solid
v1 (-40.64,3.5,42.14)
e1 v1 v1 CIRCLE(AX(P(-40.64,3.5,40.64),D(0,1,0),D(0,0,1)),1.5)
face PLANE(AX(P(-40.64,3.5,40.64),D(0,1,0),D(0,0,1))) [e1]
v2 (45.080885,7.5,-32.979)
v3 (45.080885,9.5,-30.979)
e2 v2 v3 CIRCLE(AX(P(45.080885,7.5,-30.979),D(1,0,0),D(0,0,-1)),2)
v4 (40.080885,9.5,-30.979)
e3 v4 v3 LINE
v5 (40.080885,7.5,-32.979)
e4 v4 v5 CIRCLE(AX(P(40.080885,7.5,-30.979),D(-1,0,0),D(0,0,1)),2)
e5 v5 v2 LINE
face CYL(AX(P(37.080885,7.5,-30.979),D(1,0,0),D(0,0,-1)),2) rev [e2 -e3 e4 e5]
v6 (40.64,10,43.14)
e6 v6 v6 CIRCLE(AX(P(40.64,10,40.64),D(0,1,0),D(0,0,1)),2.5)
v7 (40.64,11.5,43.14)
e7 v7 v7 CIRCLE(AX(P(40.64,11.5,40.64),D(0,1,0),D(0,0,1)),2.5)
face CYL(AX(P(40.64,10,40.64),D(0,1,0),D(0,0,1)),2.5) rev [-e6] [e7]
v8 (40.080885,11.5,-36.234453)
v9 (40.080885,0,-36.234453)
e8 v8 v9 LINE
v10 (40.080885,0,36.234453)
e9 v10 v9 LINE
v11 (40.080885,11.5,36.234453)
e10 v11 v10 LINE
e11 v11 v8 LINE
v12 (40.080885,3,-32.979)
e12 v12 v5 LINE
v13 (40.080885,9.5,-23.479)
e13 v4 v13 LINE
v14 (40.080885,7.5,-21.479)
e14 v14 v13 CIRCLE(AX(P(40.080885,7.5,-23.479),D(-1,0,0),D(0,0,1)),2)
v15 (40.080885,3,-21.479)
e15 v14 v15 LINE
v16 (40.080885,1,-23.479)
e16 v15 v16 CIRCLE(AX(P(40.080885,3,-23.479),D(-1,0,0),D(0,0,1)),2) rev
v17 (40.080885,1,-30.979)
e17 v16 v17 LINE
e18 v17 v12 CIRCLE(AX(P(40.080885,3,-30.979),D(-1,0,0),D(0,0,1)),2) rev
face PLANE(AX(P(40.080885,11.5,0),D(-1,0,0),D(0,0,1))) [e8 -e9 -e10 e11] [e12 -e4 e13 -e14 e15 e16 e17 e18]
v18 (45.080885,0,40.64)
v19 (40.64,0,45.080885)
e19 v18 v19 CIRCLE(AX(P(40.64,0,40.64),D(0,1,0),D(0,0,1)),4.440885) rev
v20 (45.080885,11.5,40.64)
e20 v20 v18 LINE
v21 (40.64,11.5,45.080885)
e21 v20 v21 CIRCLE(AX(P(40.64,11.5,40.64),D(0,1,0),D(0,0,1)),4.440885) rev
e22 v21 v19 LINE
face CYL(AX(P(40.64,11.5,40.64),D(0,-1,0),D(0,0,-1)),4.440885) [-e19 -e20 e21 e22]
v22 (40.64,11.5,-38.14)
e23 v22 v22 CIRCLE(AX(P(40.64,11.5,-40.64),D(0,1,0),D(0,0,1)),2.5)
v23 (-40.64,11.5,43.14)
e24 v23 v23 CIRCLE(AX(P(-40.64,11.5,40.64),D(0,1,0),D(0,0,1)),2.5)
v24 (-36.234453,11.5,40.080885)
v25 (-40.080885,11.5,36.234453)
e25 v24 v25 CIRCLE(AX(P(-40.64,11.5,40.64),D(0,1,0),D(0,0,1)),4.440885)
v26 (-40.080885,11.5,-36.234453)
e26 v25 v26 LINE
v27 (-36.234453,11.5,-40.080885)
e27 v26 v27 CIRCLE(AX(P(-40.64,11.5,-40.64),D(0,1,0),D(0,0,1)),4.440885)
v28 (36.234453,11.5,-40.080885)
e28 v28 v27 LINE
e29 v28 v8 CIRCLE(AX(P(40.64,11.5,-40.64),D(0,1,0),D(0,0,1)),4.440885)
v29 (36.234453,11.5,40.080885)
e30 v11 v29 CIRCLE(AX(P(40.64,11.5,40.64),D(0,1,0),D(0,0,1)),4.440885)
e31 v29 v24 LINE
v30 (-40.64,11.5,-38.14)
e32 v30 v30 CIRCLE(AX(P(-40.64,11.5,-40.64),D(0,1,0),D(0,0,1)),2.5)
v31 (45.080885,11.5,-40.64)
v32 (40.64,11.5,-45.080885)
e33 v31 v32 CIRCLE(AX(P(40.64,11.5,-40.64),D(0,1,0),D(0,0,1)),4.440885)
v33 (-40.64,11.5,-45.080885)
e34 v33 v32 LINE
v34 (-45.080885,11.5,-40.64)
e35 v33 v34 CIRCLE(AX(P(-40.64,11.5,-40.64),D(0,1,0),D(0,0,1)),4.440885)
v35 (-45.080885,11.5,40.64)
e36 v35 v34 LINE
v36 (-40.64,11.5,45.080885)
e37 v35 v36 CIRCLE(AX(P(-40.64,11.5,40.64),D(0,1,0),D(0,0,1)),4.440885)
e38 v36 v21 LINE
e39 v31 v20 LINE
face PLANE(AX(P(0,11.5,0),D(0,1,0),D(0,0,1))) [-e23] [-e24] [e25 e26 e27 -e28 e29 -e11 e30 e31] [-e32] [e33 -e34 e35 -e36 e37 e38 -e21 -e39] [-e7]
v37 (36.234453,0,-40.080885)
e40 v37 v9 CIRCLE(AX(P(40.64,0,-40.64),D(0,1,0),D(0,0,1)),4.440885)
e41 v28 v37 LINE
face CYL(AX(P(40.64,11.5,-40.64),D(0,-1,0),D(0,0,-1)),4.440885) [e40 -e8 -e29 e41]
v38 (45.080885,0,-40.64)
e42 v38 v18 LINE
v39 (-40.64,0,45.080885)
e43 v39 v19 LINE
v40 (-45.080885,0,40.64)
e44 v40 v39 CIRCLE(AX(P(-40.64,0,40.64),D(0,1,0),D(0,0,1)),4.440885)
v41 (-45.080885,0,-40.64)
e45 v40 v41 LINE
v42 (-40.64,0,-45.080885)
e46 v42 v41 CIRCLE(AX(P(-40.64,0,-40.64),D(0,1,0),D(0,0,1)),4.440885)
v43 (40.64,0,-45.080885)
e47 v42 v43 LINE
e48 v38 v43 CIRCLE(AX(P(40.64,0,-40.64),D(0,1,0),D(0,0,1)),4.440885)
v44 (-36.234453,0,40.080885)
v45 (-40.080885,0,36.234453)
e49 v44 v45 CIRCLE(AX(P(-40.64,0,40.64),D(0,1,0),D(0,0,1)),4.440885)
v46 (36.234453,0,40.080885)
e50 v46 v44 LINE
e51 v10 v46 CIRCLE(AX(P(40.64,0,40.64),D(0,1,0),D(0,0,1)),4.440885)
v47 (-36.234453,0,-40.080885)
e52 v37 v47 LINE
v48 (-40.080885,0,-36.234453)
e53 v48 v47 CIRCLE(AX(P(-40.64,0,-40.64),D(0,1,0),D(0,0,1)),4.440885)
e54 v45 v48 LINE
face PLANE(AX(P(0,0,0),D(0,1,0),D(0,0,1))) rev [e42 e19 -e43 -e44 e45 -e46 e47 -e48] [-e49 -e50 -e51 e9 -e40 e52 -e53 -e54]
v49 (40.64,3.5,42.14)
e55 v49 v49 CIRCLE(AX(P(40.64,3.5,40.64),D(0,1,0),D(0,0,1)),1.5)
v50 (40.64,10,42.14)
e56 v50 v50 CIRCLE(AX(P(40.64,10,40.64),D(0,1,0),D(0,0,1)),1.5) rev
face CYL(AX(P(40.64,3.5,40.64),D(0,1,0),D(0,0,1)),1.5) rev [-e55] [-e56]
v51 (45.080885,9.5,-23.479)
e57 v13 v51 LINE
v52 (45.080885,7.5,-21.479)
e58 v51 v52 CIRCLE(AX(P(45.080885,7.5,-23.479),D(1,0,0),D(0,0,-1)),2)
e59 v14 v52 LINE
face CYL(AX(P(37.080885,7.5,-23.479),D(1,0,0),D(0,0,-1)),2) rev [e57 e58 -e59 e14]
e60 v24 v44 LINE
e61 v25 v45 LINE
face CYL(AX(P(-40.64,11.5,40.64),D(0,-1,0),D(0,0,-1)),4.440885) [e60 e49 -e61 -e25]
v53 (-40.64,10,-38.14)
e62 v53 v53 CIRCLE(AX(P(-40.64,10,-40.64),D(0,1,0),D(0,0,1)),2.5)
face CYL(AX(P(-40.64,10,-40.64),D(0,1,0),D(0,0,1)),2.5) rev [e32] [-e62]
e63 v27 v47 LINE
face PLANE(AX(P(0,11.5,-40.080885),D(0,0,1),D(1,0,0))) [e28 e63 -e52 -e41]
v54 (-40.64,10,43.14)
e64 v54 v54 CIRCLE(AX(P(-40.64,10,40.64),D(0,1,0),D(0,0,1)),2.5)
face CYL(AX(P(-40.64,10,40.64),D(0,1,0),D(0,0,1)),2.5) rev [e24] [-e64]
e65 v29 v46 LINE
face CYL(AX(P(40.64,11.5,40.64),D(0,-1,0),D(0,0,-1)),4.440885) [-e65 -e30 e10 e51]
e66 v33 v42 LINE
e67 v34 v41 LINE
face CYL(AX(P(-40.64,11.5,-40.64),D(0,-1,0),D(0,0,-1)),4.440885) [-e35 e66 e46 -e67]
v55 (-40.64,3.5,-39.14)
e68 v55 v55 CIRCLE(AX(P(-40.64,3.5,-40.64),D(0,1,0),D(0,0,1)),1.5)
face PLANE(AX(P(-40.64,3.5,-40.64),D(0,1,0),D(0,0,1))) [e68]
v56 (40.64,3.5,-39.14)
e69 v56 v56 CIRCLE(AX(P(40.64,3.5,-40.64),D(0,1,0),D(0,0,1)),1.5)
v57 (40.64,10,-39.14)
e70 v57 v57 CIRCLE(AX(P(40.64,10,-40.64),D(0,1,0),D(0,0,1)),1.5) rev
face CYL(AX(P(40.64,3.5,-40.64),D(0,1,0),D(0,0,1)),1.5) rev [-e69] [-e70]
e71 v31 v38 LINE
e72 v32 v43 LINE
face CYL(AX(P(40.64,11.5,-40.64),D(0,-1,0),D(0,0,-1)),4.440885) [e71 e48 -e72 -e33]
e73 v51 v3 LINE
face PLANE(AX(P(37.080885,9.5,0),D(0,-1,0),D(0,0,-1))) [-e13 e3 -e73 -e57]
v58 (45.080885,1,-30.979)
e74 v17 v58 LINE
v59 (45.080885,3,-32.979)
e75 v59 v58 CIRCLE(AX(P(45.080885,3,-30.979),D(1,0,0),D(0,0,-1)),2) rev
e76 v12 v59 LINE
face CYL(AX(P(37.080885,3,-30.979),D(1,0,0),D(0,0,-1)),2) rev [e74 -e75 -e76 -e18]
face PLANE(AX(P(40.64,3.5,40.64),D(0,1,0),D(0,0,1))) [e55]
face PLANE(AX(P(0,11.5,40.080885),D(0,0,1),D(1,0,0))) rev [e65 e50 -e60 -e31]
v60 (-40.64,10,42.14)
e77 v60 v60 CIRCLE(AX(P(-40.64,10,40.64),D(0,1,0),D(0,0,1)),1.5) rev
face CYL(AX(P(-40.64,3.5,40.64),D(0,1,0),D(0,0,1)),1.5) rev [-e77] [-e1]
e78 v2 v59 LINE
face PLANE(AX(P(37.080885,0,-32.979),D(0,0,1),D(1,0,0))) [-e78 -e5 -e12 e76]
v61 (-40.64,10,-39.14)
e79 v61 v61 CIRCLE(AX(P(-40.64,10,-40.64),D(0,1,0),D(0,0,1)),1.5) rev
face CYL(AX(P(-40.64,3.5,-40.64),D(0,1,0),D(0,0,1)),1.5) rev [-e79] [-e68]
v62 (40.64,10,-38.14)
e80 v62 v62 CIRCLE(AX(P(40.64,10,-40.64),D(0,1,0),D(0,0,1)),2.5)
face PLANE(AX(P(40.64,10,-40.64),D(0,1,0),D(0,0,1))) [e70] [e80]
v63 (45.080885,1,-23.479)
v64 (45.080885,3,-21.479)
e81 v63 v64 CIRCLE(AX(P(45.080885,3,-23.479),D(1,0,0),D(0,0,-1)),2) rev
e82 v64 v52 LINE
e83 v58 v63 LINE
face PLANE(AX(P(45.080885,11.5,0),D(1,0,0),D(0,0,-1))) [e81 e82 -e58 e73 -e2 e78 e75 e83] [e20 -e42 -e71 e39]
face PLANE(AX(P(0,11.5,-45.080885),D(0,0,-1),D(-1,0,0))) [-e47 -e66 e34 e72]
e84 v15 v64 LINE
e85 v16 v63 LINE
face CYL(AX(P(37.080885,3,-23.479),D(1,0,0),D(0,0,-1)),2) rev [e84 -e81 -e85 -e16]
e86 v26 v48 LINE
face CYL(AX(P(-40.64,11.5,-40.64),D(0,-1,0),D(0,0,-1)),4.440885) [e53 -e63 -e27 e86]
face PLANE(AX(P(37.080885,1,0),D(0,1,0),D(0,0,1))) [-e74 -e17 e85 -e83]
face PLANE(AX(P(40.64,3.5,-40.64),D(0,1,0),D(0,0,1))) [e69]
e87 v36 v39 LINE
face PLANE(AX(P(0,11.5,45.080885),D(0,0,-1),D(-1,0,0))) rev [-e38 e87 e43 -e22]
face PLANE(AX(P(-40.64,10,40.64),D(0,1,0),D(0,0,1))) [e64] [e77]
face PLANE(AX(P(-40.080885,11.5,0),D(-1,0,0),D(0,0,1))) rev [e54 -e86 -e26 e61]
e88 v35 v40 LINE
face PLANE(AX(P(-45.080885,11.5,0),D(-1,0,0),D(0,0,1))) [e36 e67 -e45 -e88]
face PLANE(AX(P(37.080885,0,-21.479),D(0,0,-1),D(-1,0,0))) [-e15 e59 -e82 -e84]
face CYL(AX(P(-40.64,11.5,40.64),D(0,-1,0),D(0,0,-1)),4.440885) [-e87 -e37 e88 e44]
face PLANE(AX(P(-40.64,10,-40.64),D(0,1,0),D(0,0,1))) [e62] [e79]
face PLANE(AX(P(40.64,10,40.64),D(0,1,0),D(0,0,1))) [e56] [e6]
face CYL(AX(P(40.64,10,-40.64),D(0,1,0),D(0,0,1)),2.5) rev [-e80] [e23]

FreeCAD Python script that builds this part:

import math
import FreeCAD as App
import Part
import Sketcher
Q = App.Units.Quantity

doc = App.newDocument("Part")
body = doc.addObject("PartDesign::Body", "Body")

sketch1 = body.newObject("Sketcher::SketchObject", "Sketch")
sketch1.AttachmentSupport = (doc.getObject("XZ_Plane"), [""])
sketch1.MapMode = "FlatFace"
sketch1.addGeometry([
    Part.ArcOfCircle(Part.Circle(App.Vector(-40.6, -40.6, 0), App.Vector(0, 0, 1), 4.4), math.radians(180), math.radians(270)),
    Part.LineSegment(App.Vector(-45.1, -40.6, 0), App.Vector(-45.1, 40.6, 0)),
    Part.ArcOfCircle(Part.Circle(App.Vector(-40.6, 40.6, 0), App.Vector(0, 0, 1), 4.4), math.radians(90), math.radians(180)),
    Part.LineSegment(App.Vector(-40.6, 45.1, 0), App.Vector(40.6, 45.1, 0)),
    Part.ArcOfCircle(Part.Circle(App.Vector(40.6, 40.6, 0), App.Vector(0, 0, 1), 4.4), math.radians(0), math.radians(90)),
    Part.LineSegment(App.Vector(45.1, 40.6, 0), App.Vector(45.1, -40.6, 0)),
    Part.ArcOfCircle(Part.Circle(App.Vector(40.6, -40.6, 0), App.Vector(0, 0, 1), 4.4), math.radians(-90), math.radians(0)),
    Part.LineSegment(App.Vector(40.6, -45.1, 0), App.Vector(-40.6, -45.1, 0)),
    Part.ArcOfCircle(Part.Circle(App.Vector(40.6, 40.6, 0), App.Vector(0, 0, 1), 4.4), math.radians(-173), math.radians(-97)),
    Part.LineSegment(App.Vector(36.2, 40.1, 0), App.Vector(-36.2, 40.1, 0)),
    Part.ArcOfCircle(Part.Circle(App.Vector(-40.6, 40.6, 0), App.Vector(0, 0, 1), 4.4), math.radians(-83), math.radians(-7)),
    Part.LineSegment(App.Vector(-40.1, 36.2, 0), App.Vector(-40.1, -36.2, 0)),
    Part.ArcOfCircle(Part.Circle(App.Vector(-40.6, -40.6, 0), App.Vector(0, 0, 1), 4.4), math.radians(7), math.radians(83)),
    Part.LineSegment(App.Vector(-36.2, -40.1, 0), App.Vector(36.2, -40.1, 0)),
    Part.ArcOfCircle(Part.Circle(App.Vector(40.6, -40.6, 0), App.Vector(0, 0, 1), 4.4), math.radians(97), math.radians(173)),
    Part.LineSegment(App.Vector(40.1, -36.2, 0), App.Vector(40.1, 36.2, 0)),
], False)
sketch1.addConstraint([
    Sketcher.Constraint("Tangent", 0, 1, 1, 1),
    Sketcher.Constraint("Tangent", 1, 2, 2, 2),
    Sketcher.Constraint("Tangent", 2, 1, 3, 1),
    Sketcher.Constraint("Tangent", 3, 2, 4, 2),
    Sketcher.Constraint("Tangent", 4, 1, 5, 1),
    Sketcher.Constraint("Tangent", 5, 2, 6, 2),
    Sketcher.Constraint("Tangent", 6, 1, 7, 1),
    Sketcher.Constraint("Tangent", 7, 2, 0, 2),
    Sketcher.Constraint("Coincident", 8, 1, 9, 1),
    Sketcher.Constraint("Coincident", 9, 2, 10, 2),
    Sketcher.Constraint("Coincident", 10, 1, 11, 1),
    Sketcher.Constraint("Coincident", 11, 2, 12, 2),
    Sketcher.Constraint("Coincident", 12, 1, 13, 1),
    Sketcher.Constraint("Coincident", 13, 2, 14, 2),
    Sketcher.Constraint("Coincident", 14, 1, 15, 1),
    Sketcher.Constraint("Coincident", 15, 2, 8, 2),
    Sketcher.Constraint("Vertical", 1),
    Sketcher.Constraint("Horizontal", 3),
    Sketcher.Constraint("Vertical", 5),
    Sketcher.Constraint("Horizontal", 7),
    Sketcher.Constraint("Horizontal", 9),
    Sketcher.Constraint("Vertical", 11),
    Sketcher.Constraint("Horizontal", 13),
    Sketcher.Constraint("Vertical", 15),
    Sketcher.Constraint("Coincident", 8, 3, 4, 3),
    Sketcher.Constraint("Coincident", 10, 3, 2, 3),
    Sketcher.Constraint("Coincident", 12, 3, 0, 3),
    Sketcher.Constraint("Coincident", 14, 3, 6, 3),
    Sketcher.Constraint("Equal", 0, 2),
    Sketcher.Constraint("Equal", 2, 4),
    Sketcher.Constraint("Equal", 4, 6),
    Sketcher.Constraint("Equal", 6, 8),
    Sketcher.Constraint("Equal", 8, 10),
    Sketcher.Constraint("Equal", 10, 12),
    Sketcher.Constraint("Equal", 12, 14),
    Sketcher.Constraint("Symmetric", 0, 3, 4, 3, -1, 1),
    Sketcher.Constraint("Horizontal", 11, 2, 14, 1),
    Sketcher.Constraint("Vertical", 9, 2, 12, 1),
    Sketcher.Constraint("Equal", 7, 1),
    Sketcher.Constraint("Equal", 13, 11),
    Sketcher.Constraint("DistanceY", 8, 1, 3, 2, Q("5 mm")),
    Sketcher.Constraint("DistanceX", 3, 1, 3, 2, Q("81.28 mm")),
    Sketcher.Constraint("Radius", 0, Q("4.440885 mm")),
])
pad1 = body.newObject("PartDesign::Pad", "Pad")
pad1.Profile = sketch1
pad1.Length = 11.5
pad1.Reversed = True

sketch2 = body.newObject("Sketcher::SketchObject", "Sketch001")
sketch2.AttachmentSupport = (doc.getObject("XZ_Plane"), [""])
sketch2.MapMode = "FlatFace"
sketch2.AttachmentOffset = App.Placement(App.Vector(0, 0, -11.5), App.Rotation())
sketch2.addGeometry([
    Part.Circle(App.Vector(-40.6, -40.6, 0), App.Vector(0, 0, 1), 1.5),
    Part.Circle(App.Vector(40.6, -40.6, 0), App.Vector(0, 0, 1), 1.5),
    Part.Circle(App.Vector(40.6, 40.6, 0), App.Vector(0, 0, 1), 1.5),
    Part.Circle(App.Vector(-40.6, 40.6, 0), App.Vector(0, 0, 1), 1.5),
], False)
sketch2.addConstraint([
    Sketcher.Constraint("Equal", 0, 1),
    Sketcher.Constraint("Equal", 1, 2),
    Sketcher.Constraint("Equal", 2, 3),
    Sketcher.Constraint("Symmetric", 0, 3, 2, 3, -1, 1),
    Sketcher.Constraint("Symmetric", 1, 3, 3, 3, -1, 1),
    Sketcher.Constraint("Symmetric", 0, 3, 1, 3, -2),
    Sketcher.Constraint("Diameter", 0, Q("3 mm")),
    Sketcher.Constraint("DistanceX", 0, 3, -1, 1, Q("40.64 mm")),
    Sketcher.Constraint("DistanceY", 0, 3, -1, 1, Q("40.64 mm")),
])
pocket1 = body.newObject("PartDesign::Pocket", "Pocket")
pocket1.Profile = sketch2
pocket1.Length = 8
pocket1.Reversed = True

sketch3 = body.newObject("Sketcher::SketchObject", "Sketch002")
sketch3.AttachmentSupport = (doc.getObject("YZ_Plane"), [""])
sketch3.MapMode = "FlatFace"
sketch3.AttachmentOffset = App.Placement(App.Vector(0, 0, 45.080885), App.Rotation())
sketch3.addGeometry([
    Part.LineSegment(App.Vector(9.5, -31, 0), App.Vector(9.5, -23.5, 0)),
    Part.ArcOfCircle(Part.Circle(App.Vector(7.5, -23.5, 0), App.Vector(0, 0, 1), 2), math.radians(0), math.radians(90)),
    Part.LineSegment(App.Vector(7.5, -21.5, 0), App.Vector(3, -21.5, 0)),
    Part.ArcOfCircle(Part.Circle(App.Vector(3, -23.5, 0), App.Vector(0, 0, 1), 2), math.radians(90), math.radians(180)),
    Part.LineSegment(App.Vector(1, -23.5, 0), App.Vector(1, -31, 0)),
    Part.ArcOfCircle(Part.Circle(App.Vector(3, -31, 0), App.Vector(0, 0, 1), 2), math.radians(-180), math.radians(-90)),
    Part.LineSegment(App.Vector(3, -33, 0), App.Vector(7.5, -33, 0)),
    Part.ArcOfCircle(Part.Circle(App.Vector(7.5, -31, 0), App.Vector(0, 0, 1), 2), math.radians(-90), math.radians(0)),
], False)
sketch3.addConstraint([
    Sketcher.Constraint("Tangent", 0, 2, 1, 1),
    Sketcher.Constraint("Tangent", 1, 2, 2, 1),
    Sketcher.Constraint("Tangent", 2, 2, 3, 1),
    Sketcher.Constraint("Tangent", 3, 2, 4, 1),
    Sketcher.Constraint("Tangent", 4, 2, 5, 1),
    Sketcher.Constraint("Tangent", 5, 2, 6, 1),
    Sketcher.Constraint("Tangent", 6, 2, 7, 1),
    Sketcher.Constraint("Tangent", 7, 2, 0, 1),
    Sketcher.Constraint("Vertical", 0),
    Sketcher.Constraint("Horizontal", 2),
    Sketcher.Constraint("Vertical", 4),
    Sketcher.Constraint("Horizontal", 6),
    Sketcher.Constraint("Equal", 1, 3),
    Sketcher.Constraint("Equal", 3, 5),
    Sketcher.Constraint("Equal", 5, 7),
    Sketcher.Constraint("Radius", 1, Q("2 mm")),
    Sketcher.Constraint("DistanceX", 2, 2, 2, 1, Q("4.5 mm")),
    Sketcher.Constraint("DistanceY", 0, 1, 0, 2, Q("7.5 mm")),
    Sketcher.Constraint("DistanceX", -1, 1, 3, 3, Q("3 mm")),
    Sketcher.Constraint("DistanceY", 1, 3, -1, 1, Q("23.479 mm")),
])
pocket2 = body.newObject("PartDesign::Pocket", "Pocket001")
pocket2.Profile = sketch3
pocket2.Length = 8

sketch4 = body.newObject("Sketcher::SketchObject", "Sketch003")
sketch4.AttachmentSupport = (doc.getObject("XZ_Plane"), [""])
sketch4.MapMode = "FlatFace"
sketch4.AttachmentOffset = App.Placement(App.Vector(0, 0, -11.5), App.Rotation())
sketch4.addGeometry([
    Part.Circle(App.Vector(-40.6, -40.6, 0), App.Vector(0, 0, 1), 2.5),
    Part.Circle(App.Vector(40.6, -40.6, 0), App.Vector(0, 0, 1), 2.5),
    Part.Circle(App.Vector(40.6, 40.6, 0), App.Vector(0, 0, 1), 2.5),
    Part.Circle(App.Vector(-40.6, 40.6, 0), App.Vector(0, 0, 1), 2.5),
], False)
sketch4.addConstraint([
    Sketcher.Constraint("Equal", 0, 1),
    Sketcher.Constraint("Equal", 1, 2),
    Sketcher.Constraint("Equal", 2, 3),
    Sketcher.Constraint("Symmetric", 0, 3, 2, 3, -1, 1),
    Sketcher.Constraint("Symmetric", 1, 3, 3, 3, -1, 1),
    Sketcher.Constraint("Symmetric", 0, 3, 1, 3, -2),
    Sketcher.Constraint("Diameter", 0, Q("5 mm")),
    Sketcher.Constraint("DistanceX", 0, 3, -1, 1, Q("40.64 mm")),
    Sketcher.Constraint("DistanceY", 0, 3, -1, 1, Q("40.64 mm")),
])
pocket3 = body.newObject("PartDesign::Pocket", "Pocket002")
pocket3.Profile = sketch4
pocket3.Length = 1.5
pocket3.Reversed = True

doc.recompute()
